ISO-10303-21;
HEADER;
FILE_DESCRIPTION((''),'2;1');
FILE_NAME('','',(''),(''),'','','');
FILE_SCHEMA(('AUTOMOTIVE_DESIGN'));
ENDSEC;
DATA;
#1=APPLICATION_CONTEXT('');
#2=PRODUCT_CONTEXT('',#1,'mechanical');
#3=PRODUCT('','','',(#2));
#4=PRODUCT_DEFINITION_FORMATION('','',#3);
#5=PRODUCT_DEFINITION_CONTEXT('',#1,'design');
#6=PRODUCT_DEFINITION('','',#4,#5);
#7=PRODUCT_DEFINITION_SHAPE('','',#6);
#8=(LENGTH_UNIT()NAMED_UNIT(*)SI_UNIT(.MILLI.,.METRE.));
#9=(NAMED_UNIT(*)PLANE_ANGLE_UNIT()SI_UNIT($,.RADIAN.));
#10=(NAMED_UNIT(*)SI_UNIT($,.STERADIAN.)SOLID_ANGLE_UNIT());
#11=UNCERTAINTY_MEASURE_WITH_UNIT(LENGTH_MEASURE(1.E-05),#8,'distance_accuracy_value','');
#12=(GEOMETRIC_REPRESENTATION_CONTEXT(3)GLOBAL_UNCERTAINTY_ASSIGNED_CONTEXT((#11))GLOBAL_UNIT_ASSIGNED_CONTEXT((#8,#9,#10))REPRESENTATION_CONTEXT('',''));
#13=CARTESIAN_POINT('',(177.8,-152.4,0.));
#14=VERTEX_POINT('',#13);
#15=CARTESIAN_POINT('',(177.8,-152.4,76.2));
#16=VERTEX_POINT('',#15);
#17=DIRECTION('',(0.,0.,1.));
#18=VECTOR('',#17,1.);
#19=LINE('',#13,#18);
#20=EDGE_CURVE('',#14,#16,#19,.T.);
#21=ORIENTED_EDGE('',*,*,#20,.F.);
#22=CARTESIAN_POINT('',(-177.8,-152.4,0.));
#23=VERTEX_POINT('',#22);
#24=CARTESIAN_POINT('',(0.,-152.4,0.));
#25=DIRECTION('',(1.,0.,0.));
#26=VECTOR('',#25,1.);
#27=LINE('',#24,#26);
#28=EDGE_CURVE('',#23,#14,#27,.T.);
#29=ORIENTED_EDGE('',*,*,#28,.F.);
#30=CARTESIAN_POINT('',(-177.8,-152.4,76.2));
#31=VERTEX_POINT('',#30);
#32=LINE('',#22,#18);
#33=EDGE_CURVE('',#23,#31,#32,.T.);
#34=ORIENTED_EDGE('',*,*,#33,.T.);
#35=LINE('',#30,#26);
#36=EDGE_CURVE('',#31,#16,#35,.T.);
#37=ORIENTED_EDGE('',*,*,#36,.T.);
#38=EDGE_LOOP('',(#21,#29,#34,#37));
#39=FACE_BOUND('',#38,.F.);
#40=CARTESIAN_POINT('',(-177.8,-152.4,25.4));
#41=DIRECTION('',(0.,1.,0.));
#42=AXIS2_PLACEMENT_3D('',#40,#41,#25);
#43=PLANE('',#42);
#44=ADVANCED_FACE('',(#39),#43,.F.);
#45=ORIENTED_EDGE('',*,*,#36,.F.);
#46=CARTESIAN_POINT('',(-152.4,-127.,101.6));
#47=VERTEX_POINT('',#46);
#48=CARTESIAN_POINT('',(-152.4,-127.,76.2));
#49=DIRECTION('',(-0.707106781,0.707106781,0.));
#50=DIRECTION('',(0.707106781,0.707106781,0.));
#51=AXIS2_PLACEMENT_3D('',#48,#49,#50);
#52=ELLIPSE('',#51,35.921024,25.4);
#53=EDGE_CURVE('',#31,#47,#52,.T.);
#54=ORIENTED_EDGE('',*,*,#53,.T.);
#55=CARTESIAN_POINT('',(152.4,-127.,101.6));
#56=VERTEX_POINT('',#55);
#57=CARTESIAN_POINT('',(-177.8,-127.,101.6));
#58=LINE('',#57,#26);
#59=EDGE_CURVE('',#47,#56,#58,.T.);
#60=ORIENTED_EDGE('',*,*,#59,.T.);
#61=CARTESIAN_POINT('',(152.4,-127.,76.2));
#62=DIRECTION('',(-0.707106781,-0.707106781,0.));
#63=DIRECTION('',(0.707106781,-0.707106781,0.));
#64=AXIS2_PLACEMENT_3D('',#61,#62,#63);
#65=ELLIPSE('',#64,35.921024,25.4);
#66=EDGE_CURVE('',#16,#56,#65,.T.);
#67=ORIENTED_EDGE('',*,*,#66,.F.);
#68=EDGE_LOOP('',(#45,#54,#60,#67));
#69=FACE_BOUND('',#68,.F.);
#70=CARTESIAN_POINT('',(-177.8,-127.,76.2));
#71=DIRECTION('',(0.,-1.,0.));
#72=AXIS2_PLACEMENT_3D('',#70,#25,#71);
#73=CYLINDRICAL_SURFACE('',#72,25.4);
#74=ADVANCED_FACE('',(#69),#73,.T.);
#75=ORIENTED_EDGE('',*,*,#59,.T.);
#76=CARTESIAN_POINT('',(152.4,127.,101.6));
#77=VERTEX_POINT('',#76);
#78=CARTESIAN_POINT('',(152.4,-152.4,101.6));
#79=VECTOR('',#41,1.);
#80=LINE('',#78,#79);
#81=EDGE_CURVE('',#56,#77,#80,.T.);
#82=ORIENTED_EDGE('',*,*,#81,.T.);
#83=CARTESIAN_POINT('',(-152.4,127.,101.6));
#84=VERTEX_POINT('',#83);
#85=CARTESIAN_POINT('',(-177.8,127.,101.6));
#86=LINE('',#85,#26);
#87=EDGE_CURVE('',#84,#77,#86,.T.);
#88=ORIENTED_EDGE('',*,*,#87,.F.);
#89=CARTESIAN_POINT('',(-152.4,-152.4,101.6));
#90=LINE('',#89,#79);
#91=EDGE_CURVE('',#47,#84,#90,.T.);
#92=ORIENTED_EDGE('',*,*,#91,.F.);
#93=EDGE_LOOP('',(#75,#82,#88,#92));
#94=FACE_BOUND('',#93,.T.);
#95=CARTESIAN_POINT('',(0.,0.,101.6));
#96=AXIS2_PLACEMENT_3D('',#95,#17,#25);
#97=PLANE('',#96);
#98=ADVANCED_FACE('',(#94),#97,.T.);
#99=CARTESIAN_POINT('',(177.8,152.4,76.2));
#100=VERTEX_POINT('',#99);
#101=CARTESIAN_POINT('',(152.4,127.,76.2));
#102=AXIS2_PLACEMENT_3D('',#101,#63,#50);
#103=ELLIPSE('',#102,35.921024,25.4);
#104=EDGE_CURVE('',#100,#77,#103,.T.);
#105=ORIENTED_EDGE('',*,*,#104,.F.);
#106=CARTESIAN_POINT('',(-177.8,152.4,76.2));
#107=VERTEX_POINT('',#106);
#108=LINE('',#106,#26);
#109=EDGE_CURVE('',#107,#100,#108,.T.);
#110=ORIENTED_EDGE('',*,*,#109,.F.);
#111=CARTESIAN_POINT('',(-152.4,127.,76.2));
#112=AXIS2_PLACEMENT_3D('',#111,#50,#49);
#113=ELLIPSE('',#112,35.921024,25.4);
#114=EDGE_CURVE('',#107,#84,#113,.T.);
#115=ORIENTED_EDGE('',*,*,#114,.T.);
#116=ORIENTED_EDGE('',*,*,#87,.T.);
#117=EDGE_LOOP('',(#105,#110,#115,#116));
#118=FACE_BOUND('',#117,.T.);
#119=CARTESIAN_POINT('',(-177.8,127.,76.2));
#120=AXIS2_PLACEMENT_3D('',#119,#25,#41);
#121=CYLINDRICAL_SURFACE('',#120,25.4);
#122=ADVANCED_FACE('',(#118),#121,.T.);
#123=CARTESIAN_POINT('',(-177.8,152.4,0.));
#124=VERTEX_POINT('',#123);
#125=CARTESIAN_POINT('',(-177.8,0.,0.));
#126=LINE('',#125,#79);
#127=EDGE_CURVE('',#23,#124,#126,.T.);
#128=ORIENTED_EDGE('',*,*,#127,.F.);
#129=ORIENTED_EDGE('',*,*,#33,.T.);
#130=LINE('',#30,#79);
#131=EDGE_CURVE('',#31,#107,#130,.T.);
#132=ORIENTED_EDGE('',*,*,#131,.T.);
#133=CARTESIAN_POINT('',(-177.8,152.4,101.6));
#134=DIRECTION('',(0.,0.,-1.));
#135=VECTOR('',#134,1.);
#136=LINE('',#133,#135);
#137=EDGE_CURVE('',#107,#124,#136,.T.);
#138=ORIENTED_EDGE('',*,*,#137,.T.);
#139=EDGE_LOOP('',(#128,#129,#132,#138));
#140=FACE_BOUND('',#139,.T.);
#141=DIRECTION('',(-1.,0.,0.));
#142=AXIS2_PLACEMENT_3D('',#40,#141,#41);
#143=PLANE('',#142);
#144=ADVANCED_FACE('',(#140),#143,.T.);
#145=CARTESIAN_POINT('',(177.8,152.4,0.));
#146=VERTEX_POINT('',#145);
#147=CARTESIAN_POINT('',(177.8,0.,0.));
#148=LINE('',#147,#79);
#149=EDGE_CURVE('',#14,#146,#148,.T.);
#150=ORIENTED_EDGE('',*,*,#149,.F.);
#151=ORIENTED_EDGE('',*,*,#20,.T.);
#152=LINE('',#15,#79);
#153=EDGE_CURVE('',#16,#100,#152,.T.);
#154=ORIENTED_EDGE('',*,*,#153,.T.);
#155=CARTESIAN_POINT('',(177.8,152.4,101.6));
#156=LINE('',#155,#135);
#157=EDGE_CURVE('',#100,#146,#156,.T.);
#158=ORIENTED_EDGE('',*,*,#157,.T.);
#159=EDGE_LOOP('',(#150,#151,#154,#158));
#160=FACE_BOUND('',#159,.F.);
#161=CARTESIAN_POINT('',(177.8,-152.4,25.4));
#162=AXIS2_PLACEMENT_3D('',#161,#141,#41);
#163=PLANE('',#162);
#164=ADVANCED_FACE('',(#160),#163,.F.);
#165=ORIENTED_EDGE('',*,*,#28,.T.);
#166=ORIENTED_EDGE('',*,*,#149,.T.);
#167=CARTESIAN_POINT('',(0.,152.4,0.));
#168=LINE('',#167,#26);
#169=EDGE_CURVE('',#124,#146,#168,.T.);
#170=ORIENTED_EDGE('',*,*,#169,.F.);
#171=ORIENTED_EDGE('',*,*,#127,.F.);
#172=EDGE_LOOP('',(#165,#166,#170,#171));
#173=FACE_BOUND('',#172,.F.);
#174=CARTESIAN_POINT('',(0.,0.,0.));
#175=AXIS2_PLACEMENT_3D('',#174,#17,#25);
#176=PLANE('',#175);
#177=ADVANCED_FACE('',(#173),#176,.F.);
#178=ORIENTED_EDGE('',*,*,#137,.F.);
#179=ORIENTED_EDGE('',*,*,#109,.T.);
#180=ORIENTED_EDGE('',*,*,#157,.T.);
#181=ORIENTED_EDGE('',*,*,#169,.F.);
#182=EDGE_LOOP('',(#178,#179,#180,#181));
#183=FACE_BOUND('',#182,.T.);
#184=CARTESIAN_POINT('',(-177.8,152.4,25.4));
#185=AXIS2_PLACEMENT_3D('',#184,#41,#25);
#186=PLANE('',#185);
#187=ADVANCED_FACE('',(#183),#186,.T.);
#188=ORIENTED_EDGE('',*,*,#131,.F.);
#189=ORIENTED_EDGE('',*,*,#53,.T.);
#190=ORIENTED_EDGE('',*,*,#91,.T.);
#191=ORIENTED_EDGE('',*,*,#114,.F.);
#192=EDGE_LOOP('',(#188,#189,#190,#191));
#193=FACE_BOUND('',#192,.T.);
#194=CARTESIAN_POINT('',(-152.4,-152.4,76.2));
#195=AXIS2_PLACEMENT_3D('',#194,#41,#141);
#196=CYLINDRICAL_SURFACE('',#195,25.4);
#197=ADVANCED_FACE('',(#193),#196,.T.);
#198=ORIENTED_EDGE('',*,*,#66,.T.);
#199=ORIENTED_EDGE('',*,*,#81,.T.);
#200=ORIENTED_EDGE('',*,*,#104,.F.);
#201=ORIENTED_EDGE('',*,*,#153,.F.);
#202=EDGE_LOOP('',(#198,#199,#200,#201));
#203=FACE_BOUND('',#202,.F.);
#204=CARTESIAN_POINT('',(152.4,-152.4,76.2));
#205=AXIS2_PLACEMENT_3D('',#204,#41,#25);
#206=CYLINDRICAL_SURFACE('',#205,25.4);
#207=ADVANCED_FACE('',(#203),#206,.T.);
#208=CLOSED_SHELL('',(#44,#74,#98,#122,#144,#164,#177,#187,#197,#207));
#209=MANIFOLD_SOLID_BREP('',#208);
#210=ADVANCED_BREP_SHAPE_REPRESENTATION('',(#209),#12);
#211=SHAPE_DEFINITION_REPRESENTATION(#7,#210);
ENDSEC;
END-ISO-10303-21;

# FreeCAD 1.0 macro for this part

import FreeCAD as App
import Part
import Sketcher

V = App.Vector
Q = App.Units.Quantity


def edges_at(feature, points):
    """Names of the edges that pass closest to the given points."""
    edges = feature.Shape.Edges
    near = lambda p: min(range(len(edges)), key=lambda i: edges[i].distToShape(Part.Vertex(*p))[0])
    return sorted({f"Edge{near(p) + 1}" for p in points})

doc = App.newDocument("Part")
params = doc.addObject("Spreadsheet::Sheet", "Params")
for row, (alias, value) in enumerate([
    ("sketch1_width", "14 in"),
    ("sketch1_height", "12 in"),
    ("pad1_length", "1 in"),
    ("sketch2_width", "14 in"),
    ("sketch2_height", "12 in"),
    ("pad2_length", "3 in"),
    ("fillet_radius", "1 in"),
], start=1):
    params.set(f"A{row}", alias)
    params.set(f"B{row}", "=" + value)
    params.setAlias(f"B{row}", alias)

body = doc.addObject("PartDesign::Body", "Body")

sketch1 = body.newObject("Sketcher::SketchObject", "Sketch")
sketch1.AttachmentSupport = (doc.getObject("XY_Plane"), [""])
sketch1.MapMode = "FlatFace"
sketch1.addGeometry([
    Part.LineSegment(V(-178, 152, 0), V(-178, -152, 0)),
    Part.LineSegment(V(-178, -152, 0), V(178, -152, 0)),
    Part.LineSegment(V(178, -152, 0), V(178, 152, 0)),
    Part.LineSegment(V(178, 152, 0), V(-178, 152, 0)),
], False)
sketch1.addConstraint([
    Sketcher.Constraint("Coincident", 0, 2, 1, 1),
    Sketcher.Constraint("Coincident", 1, 2, 2, 1),
    Sketcher.Constraint("Coincident", 2, 2, 3, 1),
    Sketcher.Constraint("Coincident", 3, 2, 0, 1),
    Sketcher.Constraint("Vertical", 0),
    Sketcher.Constraint("Horizontal", 1),
    Sketcher.Constraint("Vertical", 2),
    Sketcher.Constraint("Horizontal", 3),
    Sketcher.Constraint("Symmetric", 0, 2, 2, 2, -1, 1),
    Sketcher.Constraint("DistanceX", 1, 1, 1, 2, Q("14 in")),
    Sketcher.Constraint("DistanceY", 0, 2, 0, 1, Q("12 in")),
])
sketch1.setExpression("Constraints[9]", "Params.sketch1_width")
sketch1.setExpression("Constraints[10]", "Params.sketch1_height")
pad1 = body.newObject("PartDesign::Pad", "Pad")
pad1.Profile = sketch1
pad1.setExpression("Length", "Params.pad1_length")

sketch2 = body.newObject("Sketcher::SketchObject", "Sketch001")
sketch2.AttachmentSupport = (doc.getObject("XY_Plane"), [""])
sketch2.MapMode = "FlatFace"
sketch2.AttachmentOffset = App.Placement(V(0, 0, 1 * 25.4), App.Rotation())
sketch2.addGeometry([
    Part.LineSegment(V(-178, 152, 0), V(-178, -152, 0)),
    Part.LineSegment(V(-178, -152, 0), V(178, -152, 0)),
    Part.LineSegment(V(178, -152, 0), V(178, 152, 0)),
    Part.LineSegment(V(178, 152, 0), V(-178, 152, 0)),
], False)
sketch2.addConstraint([
    Sketcher.Constraint("Coincident", 0, 2, 1, 1),
    Sketcher.Constraint("Coincident", 1, 2, 2, 1),
    Sketcher.Constraint("Coincident", 2, 2, 3, 1),
    Sketcher.Constraint("Coincident", 3, 2, 0, 1),
    Sketcher.Constraint("Vertical", 0),
    Sketcher.Constraint("Horizontal", 1),
    Sketcher.Constraint("Vertical", 2),
    Sketcher.Constraint("Horizontal", 3),
    Sketcher.Constraint("Symmetric", 0, 2, 2, 2, -1, 1),
    Sketcher.Constraint("DistanceX", 1, 1, 1, 2, Q("14 in")),
    Sketcher.Constraint("DistanceY", 0, 2, 0, 1, Q("12 in")),
])
sketch2.setExpression("Constraints[9]", "Params.sketch2_width")
sketch2.setExpression("Constraints[10]", "Params.sketch2_height")
pad2 = body.newObject("PartDesign::Pad", "Pad001")
pad2.Profile = sketch2
pad2.setExpression("Length", "Params.pad2_length")
doc.recompute()

fillet = body.newObject("PartDesign::Fillet", "Fillet")
fillet.Base = (pad2, edges_at(pad2, [
    (-177.8, 0, 101.6),
    (0, -152.4, 101.6),
    (177.8, 0, 101.6),
    (0, 152.4, 101.6),
]))
fillet.setExpression("Radius", "Params.fillet_radius")

doc.recompute()
